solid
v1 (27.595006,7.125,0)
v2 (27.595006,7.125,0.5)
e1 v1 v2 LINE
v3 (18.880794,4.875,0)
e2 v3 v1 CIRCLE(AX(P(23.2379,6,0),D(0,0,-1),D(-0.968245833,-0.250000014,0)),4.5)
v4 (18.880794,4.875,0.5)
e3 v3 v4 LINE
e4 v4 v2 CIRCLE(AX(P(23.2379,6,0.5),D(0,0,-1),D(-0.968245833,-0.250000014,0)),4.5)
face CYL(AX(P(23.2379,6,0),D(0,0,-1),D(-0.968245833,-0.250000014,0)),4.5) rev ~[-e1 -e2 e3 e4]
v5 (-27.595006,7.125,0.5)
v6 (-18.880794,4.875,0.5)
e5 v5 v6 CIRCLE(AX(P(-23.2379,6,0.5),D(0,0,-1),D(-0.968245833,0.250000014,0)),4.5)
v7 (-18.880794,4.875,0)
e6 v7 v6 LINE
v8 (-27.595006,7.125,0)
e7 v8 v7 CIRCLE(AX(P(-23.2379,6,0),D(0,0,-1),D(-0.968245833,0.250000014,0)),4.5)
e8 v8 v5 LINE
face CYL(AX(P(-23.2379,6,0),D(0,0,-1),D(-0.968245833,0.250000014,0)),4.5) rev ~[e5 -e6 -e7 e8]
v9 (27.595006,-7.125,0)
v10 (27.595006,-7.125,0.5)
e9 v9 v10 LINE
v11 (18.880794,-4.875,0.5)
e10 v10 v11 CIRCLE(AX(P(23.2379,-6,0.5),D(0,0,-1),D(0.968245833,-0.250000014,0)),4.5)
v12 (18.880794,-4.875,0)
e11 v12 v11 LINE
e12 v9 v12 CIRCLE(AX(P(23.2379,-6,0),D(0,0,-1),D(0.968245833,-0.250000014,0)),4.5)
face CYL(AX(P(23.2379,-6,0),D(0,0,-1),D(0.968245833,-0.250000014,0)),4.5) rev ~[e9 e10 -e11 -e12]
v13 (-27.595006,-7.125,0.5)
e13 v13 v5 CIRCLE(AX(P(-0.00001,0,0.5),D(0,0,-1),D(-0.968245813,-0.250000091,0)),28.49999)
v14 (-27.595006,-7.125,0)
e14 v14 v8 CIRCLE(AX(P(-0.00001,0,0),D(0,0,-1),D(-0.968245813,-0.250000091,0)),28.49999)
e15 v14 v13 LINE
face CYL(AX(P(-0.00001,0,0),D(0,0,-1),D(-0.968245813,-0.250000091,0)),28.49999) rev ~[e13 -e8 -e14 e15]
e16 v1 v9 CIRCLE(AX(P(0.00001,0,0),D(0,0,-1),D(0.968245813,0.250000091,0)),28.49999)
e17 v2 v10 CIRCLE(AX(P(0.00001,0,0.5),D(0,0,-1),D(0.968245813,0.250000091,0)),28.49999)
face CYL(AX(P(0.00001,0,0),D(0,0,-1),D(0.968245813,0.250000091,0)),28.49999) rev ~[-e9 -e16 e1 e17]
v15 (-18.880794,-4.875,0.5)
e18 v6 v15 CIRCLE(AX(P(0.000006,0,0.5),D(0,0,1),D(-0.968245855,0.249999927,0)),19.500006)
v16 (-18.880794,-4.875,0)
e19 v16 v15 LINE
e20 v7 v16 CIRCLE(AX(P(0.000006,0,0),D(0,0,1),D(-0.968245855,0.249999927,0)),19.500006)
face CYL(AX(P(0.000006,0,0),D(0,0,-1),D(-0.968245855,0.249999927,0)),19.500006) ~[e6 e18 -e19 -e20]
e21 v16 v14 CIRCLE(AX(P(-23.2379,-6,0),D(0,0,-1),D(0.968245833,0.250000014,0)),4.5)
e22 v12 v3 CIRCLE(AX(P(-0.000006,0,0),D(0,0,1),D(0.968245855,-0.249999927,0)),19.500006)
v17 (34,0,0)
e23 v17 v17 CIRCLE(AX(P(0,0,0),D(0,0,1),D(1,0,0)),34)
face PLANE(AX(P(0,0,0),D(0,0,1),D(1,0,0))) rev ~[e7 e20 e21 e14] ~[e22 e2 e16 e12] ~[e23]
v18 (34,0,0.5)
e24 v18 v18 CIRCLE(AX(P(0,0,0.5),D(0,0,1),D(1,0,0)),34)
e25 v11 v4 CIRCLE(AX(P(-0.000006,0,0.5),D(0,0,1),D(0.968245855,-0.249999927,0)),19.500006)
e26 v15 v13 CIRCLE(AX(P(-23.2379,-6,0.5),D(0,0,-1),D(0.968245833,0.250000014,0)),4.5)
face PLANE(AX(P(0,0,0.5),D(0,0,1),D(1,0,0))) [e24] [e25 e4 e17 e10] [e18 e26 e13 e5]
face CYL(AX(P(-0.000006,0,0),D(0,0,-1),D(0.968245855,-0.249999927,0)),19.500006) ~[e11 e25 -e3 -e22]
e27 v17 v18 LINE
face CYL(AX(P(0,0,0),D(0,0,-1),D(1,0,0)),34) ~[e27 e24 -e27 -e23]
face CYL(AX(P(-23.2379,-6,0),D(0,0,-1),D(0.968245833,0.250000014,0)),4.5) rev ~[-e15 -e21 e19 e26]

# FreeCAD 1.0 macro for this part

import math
import FreeCAD as App
import Part
import Sketcher
from FreeCAD import Vector

doc = App.newDocument("Part")
body = doc.addObject("PartDesign::Body", "Body")

# Sketch on XY plane
sketch1 = body.newObject("Sketcher::SketchObject", "Sketch")
sketch1.AttachmentSupport = (doc.getObject("XY_Plane"), [""])
sketch1.MapMode = "FlatFace"
sketch1.addGeometry(Part.Circle(Vector(0, 0, 0), Vector(0, 0, 1), 34), False)
sketch1.addGeometry(Part.ArcOfCircle(Part.Circle(Vector(23.2, -6, 0), Vector(0, 0, 1), 4.5), math.radians(166), math.radians(346)), False)
sketch1.addGeometry(Part.ArcOfCircle(Part.Circle(Vector(0, 0, 0), Vector(0, 0, 1), 19.5), math.radians(-14), math.radians(14)), False)
sketch1.addGeometry(Part.ArcOfCircle(Part.Circle(Vector(23.2, 6, 0), Vector(0, 0, 1), 4.5), math.radians(14), math.radians(194)), False)
sketch1.addGeometry(Part.ArcOfCircle(Part.Circle(Vector(0, 0, 0), Vector(0, 0, 1), 28.5), math.radians(-14), math.radians(14)), False)
sketch1.addGeometry(Part.ArcOfCircle(Part.Circle(Vector(0, 0, 0), Vector(0, 0, 1), 28.5), math.radians(166), math.radians(194)), False)
sketch1.addGeometry(Part.ArcOfCircle(Part.Circle(Vector(-23.2, 6, 0), Vector(0, 0, 1), 4.5), math.radians(-14), math.radians(166)), False)
sketch1.addGeometry(Part.ArcOfCircle(Part.Circle(Vector(0, 0, 0), Vector(0, 0, 1), 19.5), math.radians(166), math.radians(194)), False)
sketch1.addGeometry(Part.ArcOfCircle(Part.Circle(Vector(-23.2, -6, 0), Vector(0, 0, 1), 4.5), math.radians(-166), math.radians(14)), False)
sketch1.addConstraint(Sketcher.Constraint("Tangent", 1, 1, 2, 1))
sketch1.addConstraint(Sketcher.Constraint("Tangent", 2, 2, 3, 2))
sketch1.addConstraint(Sketcher.Constraint("Tangent", 3, 1, 4, 2))
sketch1.addConstraint(Sketcher.Constraint("Tangent", 4, 1, 1, 2))
sketch1.addConstraint(Sketcher.Constraint("Tangent", 5, 1, 6, 2))
sketch1.addConstraint(Sketcher.Constraint("Tangent", 6, 1, 7, 1))
sketch1.addConstraint(Sketcher.Constraint("Tangent", 7, 2, 8, 2))
sketch1.addConstraint(Sketcher.Constraint("Tangent", 8, 1, 5, 2))
sketch1.addConstraint(Sketcher.Constraint("Coincident", 0, 3, -1, 1))
sketch1.addConstraint(Sketcher.Constraint("Coincident", 2, 3, -1, 1))
sketch1.addConstraint(Sketcher.Constraint("Coincident", 7, 3, -1, 1))
sketch1.addConstraint(Sketcher.Constraint("Coincident", 5, 3, 2, 3))
sketch1.addConstraint(Sketcher.Constraint("Equal", 1, 3))
sketch1.addConstraint(Sketcher.Constraint("Equal", 4, 5))
sketch1.addConstraint(Sketcher.Constraint("Equal", 3, 6))
sketch1.addConstraint(Sketcher.Constraint("Equal", 2, 7))
sketch1.addConstraint(Sketcher.Constraint("Horizontal", 3, 3, 6, 3))
sketch1.addConstraint(Sketcher.Constraint("Horizontal", 1, 3, 8, 3))
sketch1.addConstraint(Sketcher.Constraint("Vertical", 1, 3, 3, 3))
sketch1.addConstraint(Sketcher.Constraint("Diameter", 0, 68.0))
sketch1.addConstraint(Sketcher.Constraint("Radius", 1, 4.5))
sketch1.addConstraint(Sketcher.Constraint("DistanceY", 1, 3, -1, 1, 6.0))
sketch1.addConstraint(Sketcher.Constraint("Radius", 4, 28.49999))
pad1 = body.newObject("PartDesign::Pad", "Pad")
pad1.Profile = sketch1
pad1.Length = 0.5

doc.recompute()
